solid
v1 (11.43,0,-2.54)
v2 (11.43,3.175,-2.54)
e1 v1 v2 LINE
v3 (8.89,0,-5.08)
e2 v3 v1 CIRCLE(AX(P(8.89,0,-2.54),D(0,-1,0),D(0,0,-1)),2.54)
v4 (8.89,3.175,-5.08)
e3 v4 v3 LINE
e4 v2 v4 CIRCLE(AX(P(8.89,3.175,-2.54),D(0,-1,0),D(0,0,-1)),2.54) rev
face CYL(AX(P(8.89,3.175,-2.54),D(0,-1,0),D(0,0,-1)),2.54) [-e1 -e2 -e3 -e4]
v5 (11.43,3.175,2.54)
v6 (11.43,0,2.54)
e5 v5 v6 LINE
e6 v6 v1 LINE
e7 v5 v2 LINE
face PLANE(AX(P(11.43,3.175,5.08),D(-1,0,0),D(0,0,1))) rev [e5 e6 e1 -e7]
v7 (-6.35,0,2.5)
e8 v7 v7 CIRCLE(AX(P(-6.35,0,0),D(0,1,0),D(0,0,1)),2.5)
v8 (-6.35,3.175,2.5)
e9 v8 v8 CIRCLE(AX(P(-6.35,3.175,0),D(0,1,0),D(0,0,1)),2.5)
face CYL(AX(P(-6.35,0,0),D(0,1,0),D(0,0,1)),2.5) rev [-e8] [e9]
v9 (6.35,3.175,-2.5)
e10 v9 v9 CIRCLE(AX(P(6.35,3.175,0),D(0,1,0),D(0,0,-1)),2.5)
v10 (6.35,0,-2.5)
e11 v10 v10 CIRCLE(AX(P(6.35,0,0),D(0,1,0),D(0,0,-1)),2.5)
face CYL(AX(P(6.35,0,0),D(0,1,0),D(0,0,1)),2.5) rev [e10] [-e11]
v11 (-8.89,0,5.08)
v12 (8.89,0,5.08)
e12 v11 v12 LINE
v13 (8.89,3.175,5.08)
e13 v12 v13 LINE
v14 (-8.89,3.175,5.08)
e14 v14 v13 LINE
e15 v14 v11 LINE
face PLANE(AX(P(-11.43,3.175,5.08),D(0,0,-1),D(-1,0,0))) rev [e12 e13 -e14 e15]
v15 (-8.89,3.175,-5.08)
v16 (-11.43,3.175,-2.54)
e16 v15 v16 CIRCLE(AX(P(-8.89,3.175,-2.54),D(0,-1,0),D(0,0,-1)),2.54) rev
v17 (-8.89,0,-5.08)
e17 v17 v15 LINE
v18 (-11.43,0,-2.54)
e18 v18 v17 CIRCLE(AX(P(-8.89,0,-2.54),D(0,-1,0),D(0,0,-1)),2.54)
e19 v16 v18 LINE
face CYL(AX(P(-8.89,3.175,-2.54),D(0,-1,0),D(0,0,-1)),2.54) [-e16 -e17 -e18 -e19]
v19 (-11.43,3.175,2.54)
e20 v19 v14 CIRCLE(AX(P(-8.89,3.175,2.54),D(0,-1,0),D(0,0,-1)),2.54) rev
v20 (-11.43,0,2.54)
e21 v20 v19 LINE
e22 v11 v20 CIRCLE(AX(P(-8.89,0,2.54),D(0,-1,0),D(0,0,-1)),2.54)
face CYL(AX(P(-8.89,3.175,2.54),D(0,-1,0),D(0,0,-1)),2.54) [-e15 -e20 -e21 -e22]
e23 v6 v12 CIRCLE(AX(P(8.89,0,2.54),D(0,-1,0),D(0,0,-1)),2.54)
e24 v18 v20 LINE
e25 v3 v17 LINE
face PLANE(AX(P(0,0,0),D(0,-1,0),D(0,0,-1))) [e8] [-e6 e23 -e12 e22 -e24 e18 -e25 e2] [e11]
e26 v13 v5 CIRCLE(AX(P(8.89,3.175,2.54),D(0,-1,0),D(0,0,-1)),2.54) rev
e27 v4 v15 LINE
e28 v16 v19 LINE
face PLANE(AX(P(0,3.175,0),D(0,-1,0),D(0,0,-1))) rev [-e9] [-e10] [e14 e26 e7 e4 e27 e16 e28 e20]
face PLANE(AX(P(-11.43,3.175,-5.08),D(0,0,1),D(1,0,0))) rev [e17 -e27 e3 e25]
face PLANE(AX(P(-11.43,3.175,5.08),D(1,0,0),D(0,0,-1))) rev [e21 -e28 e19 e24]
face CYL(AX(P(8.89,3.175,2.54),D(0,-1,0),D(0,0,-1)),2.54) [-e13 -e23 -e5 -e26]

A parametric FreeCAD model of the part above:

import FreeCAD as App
import Part
import Sketcher

V = App.Vector
Q = App.Units.Quantity


def edges_at(feature, points):
    """Names of the edges that pass closest to the given points."""
    edges = feature.Shape.Edges
    near = lambda p: min(range(len(edges)), key=lambda i: edges[i].distToShape(Part.Vertex(*p))[0])
    return sorted({f"Edge{near(p) + 1}" for p in points})


def add_polygon(sketch, points):
    """Adds a closed chain of lines whose ends are joined by coincident constraints."""
    first, n = sketch.GeometryCount, len(points)
    for a, b in zip(points, points[1:] + points[:1]):
        sketch.addGeometry(Part.LineSegment(App.Vector(*a, 0), App.Vector(*b, 0)), False)
    for i in range(n):
        sketch.addConstraint(Sketcher.Constraint("Coincident", first + i, 2, first + (i + 1) % n, 1))

doc = App.newDocument("Part")
body = doc.addObject("PartDesign::Body", "Body")

# Sketch on XZ plane
sketch1 = doc.addObject("Sketcher::SketchObject", "Sketch")
body.addObject(sketch1)
sketch1.AttachmentSupport = (doc.XZ_Plane, [""])
sketch1.MapMode = "FlatFace"
add_polygon(sketch1, [(-11.43, -5.08), (-11.43, 5.08), (11.43, 5.08), (11.43, -5.08)])  # lines 0-3
sketch1.addConstraint(Sketcher.Constraint("Vertical", 0))
sketch1.addConstraint(Sketcher.Constraint("Horizontal", 1))
sketch1.addConstraint(Sketcher.Constraint("Vertical", 2))
sketch1.addConstraint(Sketcher.Constraint("Horizontal", 3))
sketch1.addConstraint(Sketcher.Constraint("Symmetric", 0, 2, 2, 2, -1, 1))
sketch1.addConstraint(Sketcher.Constraint("DistanceX", 1, 1, 1, 2, Q("0.9 in")))
sketch1.addConstraint(Sketcher.Constraint("DistanceY", 0, 1, 0, 2, Q("0.4 in")))
pad1 = doc.addObject("PartDesign::Pad", "Pad")
body.addObject(pad1)
pad1.Profile = sketch1
pad1.Length = Q("0.125 in")
pad1.Reversed = True

# Sketch on XZ plane
sketch2 = doc.addObject("Sketcher::SketchObject", "Sketch001")
body.addObject(sketch2)
sketch2.AttachmentSupport = (doc.XZ_Plane, [""])
sketch2.MapMode = "FlatFace"
sketch2.AttachmentOffset = App.Placement(V(0, 0, -0.125 * 25.4), App.Rotation())
sketch2.addGeometry(Part.Circle(V(-6.35, 0, 0), V(0, 0, 1), 2.5), False)
sketch2.addGeometry(Part.Circle(V(6.35, 0, 0), V(0, 0, 1), 2.5), False)
sketch2.addConstraint(Sketcher.Constraint("Equal", 0, 1))
sketch2.addConstraint(Sketcher.Constraint("Symmetric", 0, 3, 1, 3, -1, 1))
sketch2.addConstraint(Sketcher.Constraint("PointOnObject", 0, 3, -1))
sketch2.addConstraint(Sketcher.Constraint("DistanceX", 0, 3, 1, 3, Q("0.5 in")))
sketch2.addConstraint(Sketcher.Constraint("Diameter", 0, 5.0))
pocket1 = doc.addObject("PartDesign::Pocket", "Pocket")
body.addObject(pocket1)
pocket1.Profile = sketch2
pocket1.Type = "ThroughAll"
pocket1.Reversed = True
doc.recompute()

fillet = doc.addObject("PartDesign::Fillet", "Fillet")
body.addObject(fillet)
fillet.Base = (pocket1, edges_at(pocket1, [
    (11.43, 1.587, 5.08),
    (-11.43, 1.587, 5.08),
    (-11.43, 1.587, -5.08),
    (11.43, 1.587, -5.08),
]))
fillet.Radius = Q("0.1 in")

doc.recompute()
